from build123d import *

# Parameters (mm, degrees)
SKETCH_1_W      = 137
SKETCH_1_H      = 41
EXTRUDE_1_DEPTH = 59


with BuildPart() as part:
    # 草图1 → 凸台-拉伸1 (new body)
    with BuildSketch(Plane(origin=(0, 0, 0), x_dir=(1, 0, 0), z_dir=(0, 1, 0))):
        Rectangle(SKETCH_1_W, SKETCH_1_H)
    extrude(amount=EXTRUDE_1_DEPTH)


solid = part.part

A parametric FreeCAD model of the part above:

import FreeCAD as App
import Part
import Sketcher
Q = App.Units.Quantity

doc = App.newDocument("Part")
params = doc.addObject("Spreadsheet::Sheet", "Params")
for row, (alias, value) in enumerate([
    ("sketch1_width", "137 mm"),
    ("sketch1_height", "41 mm"),
    ("pad1_length", "59 mm"),
], start=1):
    params.set(f"A{row}", alias)
    params.set(f"B{row}", "=" + value)
    params.setAlias(f"B{row}", alias)

body = doc.addObject("PartDesign::Body", "Body")

sketch1 = body.newObject("Sketcher::SketchObject", "Sketch")
sketch1.AttachmentSupport = (doc.getObject("XZ_Plane"), [""])
sketch1.MapMode = "FlatFace"
sketch1.addGeometry(Part.LineSegment(App.Vector(-68, -20, 0), App.Vector(-68, 20, 0)), False)
sketch1.addGeometry(Part.LineSegment(App.Vector(-68, 20, 0), App.Vector(68, 20, 0)), False)
sketch1.addGeometry(Part.LineSegment(App.Vector(68, 20, 0), App.Vector(68, -20, 0)), False)
sketch1.addGeometry(Part.LineSegment(App.Vector(68, -20, 0), App.Vector(-68, -20, 0)), False)
sketch1.addConstraint(Sketcher.Constraint("Coincident", 0, 2, 1, 1))
sketch1.addConstraint(Sketcher.Constraint("Coincident", 1, 2, 2, 1))
sketch1.addConstraint(Sketcher.Constraint("Coincident", 2, 2, 3, 1))
sketch1.addConstraint(Sketcher.Constraint("Coincident", 3, 2, 0, 1))
sketch1.addConstraint(Sketcher.Constraint("Vertical", 0))
sketch1.addConstraint(Sketcher.Constraint("Horizontal", 1))
sketch1.addConstraint(Sketcher.Constraint("Vertical", 2))
sketch1.addConstraint(Sketcher.Constraint("Horizontal", 3))
sketch1.addConstraint(Sketcher.Constraint("Symmetric", 0, 2, 2, 2, -1, 1))
sketch1.addConstraint(Sketcher.Constraint("DistanceX", 1, 1, 1, 2, Q("137 mm")))
sketch1.addConstraint(Sketcher.Constraint("DistanceY", 0, 1, 0, 2, Q("41 mm")))
sketch1.setExpression("Constraints[9]", "Params.sketch1_width")
sketch1.setExpression("Constraints[10]", "Params.sketch1_height")
pad1 = body.newObject("PartDesign::Pad", "Pad")
pad1.Profile = sketch1
pad1.setExpression("Length", "Params.pad1_length")
pad1.Reversed = True

doc.recompute()
